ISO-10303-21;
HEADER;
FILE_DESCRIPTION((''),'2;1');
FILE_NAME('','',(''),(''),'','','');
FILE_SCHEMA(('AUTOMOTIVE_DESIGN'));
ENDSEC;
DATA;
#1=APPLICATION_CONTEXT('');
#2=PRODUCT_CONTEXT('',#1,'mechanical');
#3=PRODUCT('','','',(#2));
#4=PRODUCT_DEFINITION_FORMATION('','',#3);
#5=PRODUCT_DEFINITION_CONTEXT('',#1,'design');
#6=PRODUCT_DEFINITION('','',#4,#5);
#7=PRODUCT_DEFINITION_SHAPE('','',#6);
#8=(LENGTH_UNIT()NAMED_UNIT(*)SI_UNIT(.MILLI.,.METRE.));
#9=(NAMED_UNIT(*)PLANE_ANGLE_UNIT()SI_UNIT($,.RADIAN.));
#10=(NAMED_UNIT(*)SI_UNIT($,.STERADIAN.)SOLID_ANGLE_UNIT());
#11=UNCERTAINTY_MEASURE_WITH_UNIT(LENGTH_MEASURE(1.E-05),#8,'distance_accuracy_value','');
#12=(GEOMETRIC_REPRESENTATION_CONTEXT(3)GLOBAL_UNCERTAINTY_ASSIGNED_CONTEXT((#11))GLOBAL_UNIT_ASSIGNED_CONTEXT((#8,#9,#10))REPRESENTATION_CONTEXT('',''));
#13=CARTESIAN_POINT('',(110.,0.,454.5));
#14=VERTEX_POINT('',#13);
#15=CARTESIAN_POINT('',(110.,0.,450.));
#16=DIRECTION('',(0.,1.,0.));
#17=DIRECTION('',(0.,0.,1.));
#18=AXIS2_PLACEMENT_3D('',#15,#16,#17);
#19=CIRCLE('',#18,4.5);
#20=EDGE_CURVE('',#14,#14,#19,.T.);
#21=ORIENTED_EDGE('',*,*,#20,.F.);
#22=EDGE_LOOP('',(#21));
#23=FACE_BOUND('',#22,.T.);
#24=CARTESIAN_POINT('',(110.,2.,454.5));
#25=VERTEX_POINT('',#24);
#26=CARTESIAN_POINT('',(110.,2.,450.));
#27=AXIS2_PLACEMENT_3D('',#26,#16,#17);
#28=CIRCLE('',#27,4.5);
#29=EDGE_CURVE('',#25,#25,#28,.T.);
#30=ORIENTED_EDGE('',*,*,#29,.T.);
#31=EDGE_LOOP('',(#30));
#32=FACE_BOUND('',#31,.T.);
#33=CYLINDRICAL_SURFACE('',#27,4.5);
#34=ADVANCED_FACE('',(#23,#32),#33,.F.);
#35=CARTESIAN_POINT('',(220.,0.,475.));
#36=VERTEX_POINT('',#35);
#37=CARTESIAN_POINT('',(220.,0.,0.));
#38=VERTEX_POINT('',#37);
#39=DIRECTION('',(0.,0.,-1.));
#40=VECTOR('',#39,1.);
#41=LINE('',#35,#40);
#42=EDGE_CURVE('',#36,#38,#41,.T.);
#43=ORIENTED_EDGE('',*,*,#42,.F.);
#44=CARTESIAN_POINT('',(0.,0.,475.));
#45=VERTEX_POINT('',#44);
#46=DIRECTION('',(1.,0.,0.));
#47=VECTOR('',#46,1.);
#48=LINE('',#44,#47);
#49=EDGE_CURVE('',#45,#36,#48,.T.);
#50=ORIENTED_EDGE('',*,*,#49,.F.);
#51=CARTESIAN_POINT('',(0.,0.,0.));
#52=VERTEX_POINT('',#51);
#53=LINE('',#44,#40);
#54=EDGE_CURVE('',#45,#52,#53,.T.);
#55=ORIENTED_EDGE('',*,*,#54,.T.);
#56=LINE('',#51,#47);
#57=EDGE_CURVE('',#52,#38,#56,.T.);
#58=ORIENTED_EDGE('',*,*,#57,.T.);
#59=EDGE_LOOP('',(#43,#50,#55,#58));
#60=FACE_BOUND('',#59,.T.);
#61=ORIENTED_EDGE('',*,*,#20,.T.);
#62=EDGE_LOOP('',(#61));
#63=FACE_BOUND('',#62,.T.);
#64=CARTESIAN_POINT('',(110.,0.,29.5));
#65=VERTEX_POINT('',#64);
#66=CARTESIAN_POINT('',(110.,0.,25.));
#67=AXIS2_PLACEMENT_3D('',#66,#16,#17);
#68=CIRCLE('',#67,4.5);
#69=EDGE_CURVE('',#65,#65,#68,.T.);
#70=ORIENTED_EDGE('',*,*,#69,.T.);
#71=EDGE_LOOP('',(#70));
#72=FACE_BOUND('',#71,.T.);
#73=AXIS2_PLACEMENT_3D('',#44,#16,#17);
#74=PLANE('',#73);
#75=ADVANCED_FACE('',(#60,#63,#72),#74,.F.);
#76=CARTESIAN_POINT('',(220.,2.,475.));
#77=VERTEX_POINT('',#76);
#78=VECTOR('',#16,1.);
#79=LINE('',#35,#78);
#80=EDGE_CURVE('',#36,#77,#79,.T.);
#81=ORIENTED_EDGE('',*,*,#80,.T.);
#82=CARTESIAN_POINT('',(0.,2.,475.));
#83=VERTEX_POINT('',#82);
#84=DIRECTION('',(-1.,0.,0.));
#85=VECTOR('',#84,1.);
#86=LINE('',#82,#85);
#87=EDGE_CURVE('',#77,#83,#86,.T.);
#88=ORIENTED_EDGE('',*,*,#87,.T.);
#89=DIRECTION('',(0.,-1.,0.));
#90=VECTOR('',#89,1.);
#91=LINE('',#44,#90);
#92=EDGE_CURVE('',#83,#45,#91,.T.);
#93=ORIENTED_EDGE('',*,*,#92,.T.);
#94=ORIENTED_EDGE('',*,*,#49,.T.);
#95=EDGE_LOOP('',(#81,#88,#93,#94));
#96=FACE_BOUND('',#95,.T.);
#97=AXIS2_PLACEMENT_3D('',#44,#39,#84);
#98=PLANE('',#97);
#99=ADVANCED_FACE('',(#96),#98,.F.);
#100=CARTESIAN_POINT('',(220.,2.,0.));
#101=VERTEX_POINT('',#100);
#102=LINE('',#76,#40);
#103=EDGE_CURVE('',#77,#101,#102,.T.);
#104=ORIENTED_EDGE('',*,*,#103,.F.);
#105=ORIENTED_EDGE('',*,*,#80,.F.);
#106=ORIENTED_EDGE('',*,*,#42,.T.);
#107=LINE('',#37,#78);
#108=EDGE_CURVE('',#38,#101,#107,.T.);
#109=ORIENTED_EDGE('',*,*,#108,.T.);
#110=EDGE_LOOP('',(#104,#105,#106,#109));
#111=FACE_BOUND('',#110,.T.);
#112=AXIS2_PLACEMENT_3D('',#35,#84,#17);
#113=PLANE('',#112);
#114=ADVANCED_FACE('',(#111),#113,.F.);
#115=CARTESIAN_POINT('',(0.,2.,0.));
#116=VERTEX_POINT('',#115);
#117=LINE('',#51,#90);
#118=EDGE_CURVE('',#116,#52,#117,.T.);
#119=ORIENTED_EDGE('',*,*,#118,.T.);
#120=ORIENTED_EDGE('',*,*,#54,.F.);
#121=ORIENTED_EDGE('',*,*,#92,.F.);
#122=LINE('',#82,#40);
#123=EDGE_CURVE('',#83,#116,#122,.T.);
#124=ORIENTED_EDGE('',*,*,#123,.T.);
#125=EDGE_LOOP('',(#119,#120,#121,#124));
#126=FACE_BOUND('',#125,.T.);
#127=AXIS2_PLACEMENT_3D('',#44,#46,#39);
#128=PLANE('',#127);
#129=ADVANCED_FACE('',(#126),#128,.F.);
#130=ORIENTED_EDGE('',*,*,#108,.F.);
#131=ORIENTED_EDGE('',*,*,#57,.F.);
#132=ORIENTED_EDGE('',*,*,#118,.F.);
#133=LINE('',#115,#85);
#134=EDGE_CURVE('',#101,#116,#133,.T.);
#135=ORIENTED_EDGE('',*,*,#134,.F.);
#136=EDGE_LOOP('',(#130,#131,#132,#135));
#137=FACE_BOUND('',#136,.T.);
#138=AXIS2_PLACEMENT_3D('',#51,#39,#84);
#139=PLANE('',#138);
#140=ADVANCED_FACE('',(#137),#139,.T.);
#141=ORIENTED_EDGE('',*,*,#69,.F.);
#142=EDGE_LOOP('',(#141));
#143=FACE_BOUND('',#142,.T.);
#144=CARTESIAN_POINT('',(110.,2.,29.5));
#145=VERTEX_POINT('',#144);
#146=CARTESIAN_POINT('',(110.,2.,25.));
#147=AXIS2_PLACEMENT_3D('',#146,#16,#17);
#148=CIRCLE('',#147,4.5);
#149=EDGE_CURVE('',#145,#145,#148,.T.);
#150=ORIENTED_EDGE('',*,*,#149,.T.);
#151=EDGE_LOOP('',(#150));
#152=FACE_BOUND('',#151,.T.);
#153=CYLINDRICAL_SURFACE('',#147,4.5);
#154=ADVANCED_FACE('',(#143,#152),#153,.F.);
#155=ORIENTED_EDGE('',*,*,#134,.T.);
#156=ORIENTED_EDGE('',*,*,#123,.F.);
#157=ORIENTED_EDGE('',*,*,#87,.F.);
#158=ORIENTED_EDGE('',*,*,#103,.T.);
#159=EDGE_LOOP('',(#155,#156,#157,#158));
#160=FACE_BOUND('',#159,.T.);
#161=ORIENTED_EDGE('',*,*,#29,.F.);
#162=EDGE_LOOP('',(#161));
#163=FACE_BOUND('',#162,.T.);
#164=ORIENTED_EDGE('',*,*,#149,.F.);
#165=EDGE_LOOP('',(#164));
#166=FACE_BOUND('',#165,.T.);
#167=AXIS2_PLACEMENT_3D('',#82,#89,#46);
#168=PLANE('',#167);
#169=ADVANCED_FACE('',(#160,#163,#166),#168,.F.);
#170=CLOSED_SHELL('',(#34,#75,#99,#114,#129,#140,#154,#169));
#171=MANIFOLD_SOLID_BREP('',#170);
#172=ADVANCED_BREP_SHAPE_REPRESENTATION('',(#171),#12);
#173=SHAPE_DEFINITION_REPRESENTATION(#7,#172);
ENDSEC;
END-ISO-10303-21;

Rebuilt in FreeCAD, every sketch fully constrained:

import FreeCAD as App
import Part
import Sketcher
Q = App.Units.Quantity

doc = App.newDocument("Part")
body = doc.addObject("PartDesign::Body", "Body")

sketch1 = body.newObject("Sketcher::SketchObject", "Sketch")
sketch1.AttachmentSupport = (doc.getObject("XY_Plane"), [""])
sketch1.MapMode = "FlatFace"
sketch1.addGeometry(Part.LineSegment(App.Vector(0, 2, 0), App.Vector(0, 0, 0)), False)
sketch1.addGeometry(Part.LineSegment(App.Vector(0, 0, 0), App.Vector(220, 0, 0)), False)
sketch1.addGeometry(Part.LineSegment(App.Vector(220, 0, 0), App.Vector(220, 2, 0)), False)
sketch1.addGeometry(Part.LineSegment(App.Vector(220, 2, 0), App.Vector(0, 2, 0)), False)
sketch1.addConstraint(Sketcher.Constraint("Coincident", 0, 2, 1, 1))
sketch1.addConstraint(Sketcher.Constraint("Coincident", 1, 2, 2, 1))
sketch1.addConstraint(Sketcher.Constraint("Coincident", 2, 2, 3, 1))
sketch1.addConstraint(Sketcher.Constraint("Coincident", 3, 2, 0, 1))
sketch1.addConstraint(Sketcher.Constraint("Vertical", 0))
sketch1.addConstraint(Sketcher.Constraint("Horizontal", 1))
sketch1.addConstraint(Sketcher.Constraint("Vertical", 2))
sketch1.addConstraint(Sketcher.Constraint("Horizontal", 3))
sketch1.addConstraint(Sketcher.Constraint("Coincident", 0, 2, -1, 1))
sketch1.addConstraint(Sketcher.Constraint("DistanceX", 1, 1, 1, 2, Q("220 mm")))
sketch1.addConstraint(Sketcher.Constraint("DistanceY", 0, 2, 0, 1, Q("2 mm")))
pad1 = body.newObject("PartDesign::Pad", "Pad")
pad1.Profile = sketch1
pad1.Length = 475

sketch2 = body.newObject("Sketcher::SketchObject", "Sketch001")
sketch2.AttachmentSupport = (doc.getObject("XZ_Plane"), [""])
sketch2.MapMode = "FlatFace"
sketch2.AttachmentOffset = App.Placement(App.Vector(0, 0, -2), App.Rotation())
sketch2.addGeometry(Part.Circle(App.Vector(110, 25, 0), App.Vector(0, 0, 1), 4.5), False)
sketch2.addGeometry(Part.Circle(App.Vector(110, 450, 0), App.Vector(0, 0, 1), 4.5), False)
sketch2.addConstraint(Sketcher.Constraint("Equal", 0, 1))
sketch2.addConstraint(Sketcher.Constraint("Vertical", 0, 3, 1, 3))
sketch2.addConstraint(Sketcher.Constraint("Diameter", 0, Q("9 mm")))
sketch2.addConstraint(Sketcher.Constraint("DistanceX", -1, 1, 0, 3, Q("110 mm")))
sketch2.addConstraint(Sketcher.Constraint("DistanceY", -1, 1, 0, 3, Q("25 mm")))
sketch2.addConstraint(Sketcher.Constraint("DistanceY", -1, 1, 1, 3, Q("450 mm")))
doc.recompute()
hole = body.newObject("PartDesign::Hole", "Hole")
hole.Profile = sketch2
hole.ThreadType = "None"
hole.Diameter = 9
hole.DepthType = "Dimension"
hole.Depth = 10
hole.DrillPoint = "Angled"
hole.DrillPointAngle = 118
hole.Reversed = True

doc.recompute()
